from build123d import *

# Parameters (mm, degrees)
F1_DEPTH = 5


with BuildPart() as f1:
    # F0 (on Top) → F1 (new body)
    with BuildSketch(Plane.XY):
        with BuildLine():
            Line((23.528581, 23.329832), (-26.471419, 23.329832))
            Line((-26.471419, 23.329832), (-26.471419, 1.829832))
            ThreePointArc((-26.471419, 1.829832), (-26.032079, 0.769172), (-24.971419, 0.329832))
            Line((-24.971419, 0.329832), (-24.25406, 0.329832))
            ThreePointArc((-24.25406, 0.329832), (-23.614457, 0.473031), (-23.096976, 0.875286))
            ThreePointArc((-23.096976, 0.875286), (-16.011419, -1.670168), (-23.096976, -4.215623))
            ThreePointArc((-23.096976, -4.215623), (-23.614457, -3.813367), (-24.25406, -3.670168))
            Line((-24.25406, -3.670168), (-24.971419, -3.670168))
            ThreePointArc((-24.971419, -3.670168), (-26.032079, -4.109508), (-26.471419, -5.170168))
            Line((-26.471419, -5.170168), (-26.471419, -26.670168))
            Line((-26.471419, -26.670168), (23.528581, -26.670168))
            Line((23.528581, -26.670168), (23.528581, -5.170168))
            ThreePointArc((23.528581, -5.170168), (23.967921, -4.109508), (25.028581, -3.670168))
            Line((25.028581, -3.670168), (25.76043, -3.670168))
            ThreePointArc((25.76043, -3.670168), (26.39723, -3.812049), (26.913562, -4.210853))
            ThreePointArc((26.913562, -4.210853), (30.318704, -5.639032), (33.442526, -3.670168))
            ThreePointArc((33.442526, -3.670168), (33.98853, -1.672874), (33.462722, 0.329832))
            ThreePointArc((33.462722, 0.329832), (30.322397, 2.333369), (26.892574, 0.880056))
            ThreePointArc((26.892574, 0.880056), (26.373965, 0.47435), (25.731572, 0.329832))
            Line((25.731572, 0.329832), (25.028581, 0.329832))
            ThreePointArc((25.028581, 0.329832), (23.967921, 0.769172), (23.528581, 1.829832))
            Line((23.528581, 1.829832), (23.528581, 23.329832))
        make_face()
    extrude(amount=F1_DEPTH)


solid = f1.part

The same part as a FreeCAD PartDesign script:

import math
import FreeCAD as App
import Part
import Sketcher
from FreeCAD import Vector

doc = App.newDocument("Part")
body = doc.addObject("PartDesign::Body", "Body")

# Sketch on XY plane
sketch1 = doc.addObject("Sketcher::SketchObject", "Sketch")
body.addObject(sketch1)
sketch1.AttachmentSupport = (doc.XY_Plane, [""])
sketch1.MapMode = "FlatFace"
sketch1.addGeometry(Part.LineSegment(Vector(23.5, 23.3, 0), Vector(-26.5, 23.3, 0)), False)
sketch1.addGeometry(Part.LineSegment(Vector(-26.5, 23.3, 0), Vector(-26.5, 1.8, 0)), False)
sketch1.addGeometry(Part.ArcOfCircle(Part.Circle(Vector(-25, 1.8, 0), Vector(0, 0, 1), 1.5), math.radians(-180), math.radians(-90)), False)
sketch1.addGeometry(Part.LineSegment(Vector(-25, 0.3, 0), Vector(-24.3, 0.3, 0)), False)
sketch1.addGeometry(Part.ArcOfCircle(Part.Circle(Vector(-24.3, 1.8, 0), Vector(0, 0, 1), 1.5), math.radians(-90), math.radians(-40)), False)
sketch1.addGeometry(Part.ArcOfCircle(Part.Circle(Vector(-20, -1.7, 0), Vector(0, 0, 1), 4), math.radians(-140), math.radians(140)), False)
sketch1.addGeometry(Part.ArcOfCircle(Part.Circle(Vector(-24.3, -5.2, 0), Vector(0, 0, 1), 1.5), math.radians(40), math.radians(90)), False)
sketch1.addGeometry(Part.LineSegment(Vector(-24.3, -3.7, 0), Vector(-25, -3.7, 0)), False)
sketch1.addGeometry(Part.ArcOfCircle(Part.Circle(Vector(-25, -5.2, 0), Vector(0, 0, 1), 1.5), math.radians(90), math.radians(180)), False)
sketch1.addGeometry(Part.LineSegment(Vector(-26.5, -5.2, 0), Vector(-26.5, -26.7, 0)), False)
sketch1.addGeometry(Part.LineSegment(Vector(-26.5, -26.7, 0), Vector(23.5, -26.7, 0)), False)
sketch1.addGeometry(Part.LineSegment(Vector(23.5, -26.7, 0), Vector(23.5, -5.2, 0)), False)
sketch1.addGeometry(Part.ArcOfCircle(Part.Circle(Vector(25, -5.2, 0), Vector(0, 0, 1), 1.5), math.radians(90), math.radians(180)), False)
sketch1.addGeometry(Part.LineSegment(Vector(25, -3.7, 0), Vector(25.8, -3.7, 0)), False)
sketch1.addGeometry(Part.ArcOfCircle(Part.Circle(Vector(25.8, -5.2, 0), Vector(0, 0, 1), 1.5), math.radians(40), math.radians(90)), False)
sketch1.addGeometry(Part.ArcOfCircle(Part.Circle(Vector(30, -1.7, 0), Vector(0, 0, 1), 4), math.radians(-140), math.radians(-30)), False)
sketch1.addGeometry(Part.ArcOfCircle(Part.Circle(Vector(30, -1.7, 0), Vector(0, 0, 1), 4), math.radians(-30), math.radians(30)), False)
sketch1.addGeometry(Part.ArcOfCircle(Part.Circle(Vector(30, -1.7, 0), Vector(0, 0, 1), 4), math.radians(30), math.radians(141)), False)
sketch1.addGeometry(Part.ArcOfCircle(Part.Circle(Vector(25.7, 1.8, 0), Vector(0, 0, 1), 1.5), math.radians(-90), math.radians(-39)), False)
sketch1.addGeometry(Part.LineSegment(Vector(25.7, 0.3, 0), Vector(25, 0.3, 0)), False)
sketch1.addGeometry(Part.ArcOfCircle(Part.Circle(Vector(25, 1.8, 0), Vector(0, 0, 1), 1.5), math.radians(-180), math.radians(-90)), False)
sketch1.addGeometry(Part.LineSegment(Vector(23.5, 1.8, 0), Vector(23.5, 23.3, 0)), False)
sketch1.addConstraint(Sketcher.Constraint("Coincident", 0, 2, 1, 1))
sketch1.addConstraint(Sketcher.Constraint("Tangent", 1, 2, 2, 1))
sketch1.addConstraint(Sketcher.Constraint("Tangent", 2, 2, 3, 1))
sketch1.addConstraint(Sketcher.Constraint("Tangent", 3, 2, 4, 1))
sketch1.addConstraint(Sketcher.Constraint("Tangent", 4, 2, 5, 2))
sketch1.addConstraint(Sketcher.Constraint("Tangent", 5, 1, 6, 1))
sketch1.addConstraint(Sketcher.Constraint("Tangent", 6, 2, 7, 1))
sketch1.addConstraint(Sketcher.Constraint("Tangent", 7, 2, 8, 1))
sketch1.addConstraint(Sketcher.Constraint("Tangent", 8, 2, 9, 1))
sketch1.addConstraint(Sketcher.Constraint("Coincident", 9, 2, 10, 1))
sketch1.addConstraint(Sketcher.Constraint("Coincident", 10, 2, 11, 1))
sketch1.addConstraint(Sketcher.Constraint("Tangent", 11, 2, 12, 2))
sketch1.addConstraint(Sketcher.Constraint("Tangent", 12, 1, 13, 1))
sketch1.addConstraint(Sketcher.Constraint("Tangent", 13, 2, 14, 2))
sketch1.addConstraint(Sketcher.Constraint("Coincident", 14, 1, 15, 1))
sketch1.addConstraint(Sketcher.Constraint("Tangent", 15, 2, 16, 1))
sketch1.addConstraint(Sketcher.Constraint("Tangent", 16, 2, 17, 1))
sketch1.addConstraint(Sketcher.Constraint("Tangent", 17, 2, 18, 2))
sketch1.addConstraint(Sketcher.Constraint("Tangent", 18, 1, 19, 1))
sketch1.addConstraint(Sketcher.Constraint("Tangent", 19, 2, 20, 2))
sketch1.addConstraint(Sketcher.Constraint("Tangent", 20, 1, 21, 1))
sketch1.addConstraint(Sketcher.Constraint("Coincident", 21, 2, 0, 1))
sketch1.addConstraint(Sketcher.Constraint("Horizontal", 0))
sketch1.addConstraint(Sketcher.Constraint("Vertical", 1))
sketch1.addConstraint(Sketcher.Constraint("Horizontal", 3))
sketch1.addConstraint(Sketcher.Constraint("Horizontal", 7))
sketch1.addConstraint(Sketcher.Constraint("Vertical", 9))
sketch1.addConstraint(Sketcher.Constraint("Horizontal", 10))
sketch1.addConstraint(Sketcher.Constraint("Vertical", 11))
sketch1.addConstraint(Sketcher.Constraint("Horizontal", 13))
sketch1.addConstraint(Sketcher.Constraint("Horizontal", 19))
sketch1.addConstraint(Sketcher.Constraint("Vertical", 21))
sketch1.addConstraint(Sketcher.Constraint("Coincident", 17, 3, 15, 3))
sketch1.addConstraint(Sketcher.Constraint("Equal", 2, 4))
sketch1.addConstraint(Sketcher.Constraint("Equal", 4, 8))
sketch1.addConstraint(Sketcher.Constraint("Equal", 8, 12))
sketch1.addConstraint(Sketcher.Constraint("Equal", 5, 15))
sketch1.addConstraint(Sketcher.Constraint("Equal", 12, 18))
sketch1.addConstraint(Sketcher.Constraint("Equal", 18, 20))
sketch1.addConstraint(Sketcher.Constraint("Horizontal", 8, 3, 12, 3))
sketch1.addConstraint(Sketcher.Constraint("Horizontal", 4, 3, 18, 3))
sketch1.addConstraint(Sketcher.Constraint("Horizontal", 13, 2, 15, 2))
sketch1.addConstraint(Sketcher.Constraint("Horizontal", 3, 2, 16, 2))
sketch1.addConstraint(Sketcher.Constraint("Vertical", 4, 3, 6, 3))
sketch1.addConstraint(Sketcher.Constraint("Vertical", 2, 3, 8, 3))
sketch1.addConstraint(Sketcher.Constraint("Vertical", 12, 3, 20, 3))
sketch1.addConstraint(Sketcher.Constraint("Vertical", 4, 2, 5, 1))
sketch1.addConstraint(Sketcher.Constraint("Equal", 1, 9))
sketch1.addConstraint(Sketcher.Constraint("Radius", 5, 4.0))
sketch1.addConstraint(Sketcher.Constraint("Radius", 2, 1.500001))
sketch1.addConstraint(Sketcher.Constraint("DistanceX", 0, 2, 0, 1, 50.0))
sketch1.addConstraint(Sketcher.Constraint("DistanceY", 1, 2, 1, 1, 21.5))
sketch1.addConstraint(Sketcher.Constraint("DistanceY", 8, 3, 2, 3, 7.000001))
sketch1.addConstraint(Sketcher.Constraint("DistanceX", 5, 3, 15, 3, 50.0))
sketch1.addConstraint(Sketcher.Constraint("DistanceX", 2, 3, 5, 3, 4.959999))
sketch1.addConstraint(Sketcher.Constraint("Radius", 14, 1.499993))
sketch1.addConstraint(Sketcher.Constraint("DistanceX", 18, 3, 17, 2, 1.161002))
sketch1.addConstraint(Sketcher.Constraint("DistanceX", 2, 3, -1, 1, 24.971418))
sketch1.addConstraint(Sketcher.Constraint("DistanceY", -1, 1, 4, 3, 1.829832))
sketch1.addConstraint(Sketcher.Constraint("DistanceX", -1, 1, 14, 1, 26.913562))
pad1 = doc.addObject("PartDesign::Pad", "Pad")
body.addObject(pad1)
pad1.Profile = sketch1
pad1.Length = 5

doc.recompute()
